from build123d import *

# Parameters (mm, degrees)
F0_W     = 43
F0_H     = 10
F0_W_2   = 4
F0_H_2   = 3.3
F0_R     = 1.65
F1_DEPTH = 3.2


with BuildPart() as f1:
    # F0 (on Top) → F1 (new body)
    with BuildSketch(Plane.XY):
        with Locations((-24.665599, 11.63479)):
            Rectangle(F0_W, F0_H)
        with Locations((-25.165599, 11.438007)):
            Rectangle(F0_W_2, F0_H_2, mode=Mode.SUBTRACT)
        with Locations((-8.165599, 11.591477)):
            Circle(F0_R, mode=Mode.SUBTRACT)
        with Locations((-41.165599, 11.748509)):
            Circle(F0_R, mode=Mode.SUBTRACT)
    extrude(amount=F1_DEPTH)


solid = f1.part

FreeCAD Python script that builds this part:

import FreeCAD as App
import Part
import Sketcher
from FreeCAD import Vector

doc = App.newDocument("Part")
body = doc.addObject("PartDesign::Body", "Body")

sketch1 = doc.addObject("Sketcher::SketchObject", "Sketch")
body.addObject(sketch1)
sketch1.AttachmentSupport = (doc.XY_Plane, [""])
sketch1.MapMode = "FlatFace"
sketch1.addGeometry(Part.LineSegment(Vector(-46.2, 16.6, 0), Vector(-46.2, 6.6, 0)), False)
sketch1.addGeometry(Part.LineSegment(Vector(-46.2, 6.6, 0), Vector(-3.2, 6.6, 0)), False)
sketch1.addGeometry(Part.LineSegment(Vector(-3.2, 6.6, 0), Vector(-3.2, 16.6, 0)), False)
sketch1.addGeometry(Part.LineSegment(Vector(-3.2, 16.6, 0), Vector(-46.2, 16.6, 0)), False)
sketch1.addGeometry(Part.LineSegment(Vector(-23.2, 9.8, 0), Vector(-27.2, 9.8, 0)), False)
sketch1.addGeometry(Part.LineSegment(Vector(-27.2, 9.8, 0), Vector(-27.2, 13.1, 0)), False)
sketch1.addGeometry(Part.LineSegment(Vector(-27.2, 13.1, 0), Vector(-23.2, 13.1, 0)), False)
sketch1.addGeometry(Part.LineSegment(Vector(-23.2, 13.1, 0), Vector(-23.2, 9.8, 0)), False)
sketch1.addGeometry(Part.Circle(Vector(-8.2, 11.6, 0), Vector(0, 0, 1), 1.6), False)
sketch1.addGeometry(Part.Circle(Vector(-41.2, 11.7, 0), Vector(0, 0, 1), 1.6), False)
sketch1.addConstraint(Sketcher.Constraint("Coincident", 0, 2, 1, 1))
sketch1.addConstraint(Sketcher.Constraint("Coincident", 1, 2, 2, 1))
sketch1.addConstraint(Sketcher.Constraint("Coincident", 2, 2, 3, 1))
sketch1.addConstraint(Sketcher.Constraint("Coincident", 3, 2, 0, 1))
sketch1.addConstraint(Sketcher.Constraint("Coincident", 4, 2, 5, 1))
sketch1.addConstraint(Sketcher.Constraint("Coincident", 5, 2, 6, 1))
sketch1.addConstraint(Sketcher.Constraint("Coincident", 6, 2, 7, 1))
sketch1.addConstraint(Sketcher.Constraint("Coincident", 7, 2, 4, 1))
sketch1.addConstraint(Sketcher.Constraint("Vertical", 0))
sketch1.addConstraint(Sketcher.Constraint("Horizontal", 1))
sketch1.addConstraint(Sketcher.Constraint("Vertical", 2))
sketch1.addConstraint(Sketcher.Constraint("Horizontal", 3))
sketch1.addConstraint(Sketcher.Constraint("Horizontal", 4))
sketch1.addConstraint(Sketcher.Constraint("Vertical", 5))
sketch1.addConstraint(Sketcher.Constraint("Horizontal", 6))
sketch1.addConstraint(Sketcher.Constraint("Vertical", 7))
sketch1.addConstraint(Sketcher.Constraint("Equal", 8, 9))
sketch1.addConstraint(Sketcher.Constraint("Diameter", 8, 3.3))
sketch1.addConstraint(Sketcher.Constraint("DistanceX", 1, 1, 1, 2, 43.0))
sketch1.addConstraint(Sketcher.Constraint("DistanceX", 4, 2, 4, 1, 4.0))
sketch1.addConstraint(Sketcher.Constraint("DistanceY", 0, 2, 0, 1, 10.0))
sketch1.addConstraint(Sketcher.Constraint("DistanceY", 5, 1, 5, 2, 3.3))
sketch1.addConstraint(Sketcher.Constraint("DistanceX", 9, 3, 8, 3, 33.0))
sketch1.addConstraint(Sketcher.Constraint("DistanceX", 0, 2, 9, 3, 5.0))
sketch1.addConstraint(Sketcher.Constraint("DistanceX", 9, 3, 4, 2, 14.0))
sketch1.addConstraint(Sketcher.Constraint("DistanceX", 8, 3, -1, 1, 8.165599))
sketch1.addConstraint(Sketcher.Constraint("DistanceY", -1, 1, 9, 3, 11.748509))
sketch1.addConstraint(Sketcher.Constraint("DistanceY", -1, 1, 0, 2, 6.63479))
sketch1.addConstraint(Sketcher.Constraint("DistanceY", 4, 2, 8, 3, 1.80347))
sketch1.addConstraint(Sketcher.Constraint("DistanceY", -1, 1, 8, 3, 11.591477))
pad1 = doc.addObject("PartDesign::Pad", "Pad")
body.addObject(pad1)
pad1.Profile = sketch1
pad1.Length = 3.2

doc.recompute()
